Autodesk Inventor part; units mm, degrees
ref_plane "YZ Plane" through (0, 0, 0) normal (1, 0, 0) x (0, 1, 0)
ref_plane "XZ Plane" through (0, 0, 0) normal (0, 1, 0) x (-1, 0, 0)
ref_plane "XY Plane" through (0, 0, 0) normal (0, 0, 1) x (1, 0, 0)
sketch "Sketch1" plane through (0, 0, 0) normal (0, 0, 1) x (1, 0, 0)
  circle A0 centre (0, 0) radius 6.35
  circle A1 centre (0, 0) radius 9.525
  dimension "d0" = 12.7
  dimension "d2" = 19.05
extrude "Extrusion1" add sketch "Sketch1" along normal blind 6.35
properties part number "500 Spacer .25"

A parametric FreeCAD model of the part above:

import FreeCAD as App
import Part
import Sketcher
Q = App.Units.Quantity

doc = App.newDocument("Part")
body = doc.addObject("PartDesign::Body", "Body")

# Sketch on XY plane
sketch1 = doc.addObject("Sketcher::SketchObject", "Sketch")
body.addObject(sketch1)
sketch1.AttachmentSupport = (doc.XY_Plane, [""])
sketch1.MapMode = "FlatFace"
sketch1.addGeometry([
    Part.Circle(App.Vector(0, 0, 0), App.Vector(0, 0, 1), 10),
    Part.Circle(App.Vector(0, 0, 0), App.Vector(0, 0, 1), 6),
], False)
sketch1.addConstraint([
    Sketcher.Constraint("Coincident", 0, 3, -1, 1),
    Sketcher.Constraint("Coincident", 1, 3, -1, 1),
    Sketcher.Constraint("Diameter", 1, Q("0.5 in")),
    Sketcher.Constraint("Diameter", 0, Q("0.75 in")),
])
pad1 = doc.addObject("PartDesign::Pad", "Pad")
body.addObject(pad1)
pad1.Profile = sketch1
pad1.Length = Q("0.25 in")

doc.recompute()
